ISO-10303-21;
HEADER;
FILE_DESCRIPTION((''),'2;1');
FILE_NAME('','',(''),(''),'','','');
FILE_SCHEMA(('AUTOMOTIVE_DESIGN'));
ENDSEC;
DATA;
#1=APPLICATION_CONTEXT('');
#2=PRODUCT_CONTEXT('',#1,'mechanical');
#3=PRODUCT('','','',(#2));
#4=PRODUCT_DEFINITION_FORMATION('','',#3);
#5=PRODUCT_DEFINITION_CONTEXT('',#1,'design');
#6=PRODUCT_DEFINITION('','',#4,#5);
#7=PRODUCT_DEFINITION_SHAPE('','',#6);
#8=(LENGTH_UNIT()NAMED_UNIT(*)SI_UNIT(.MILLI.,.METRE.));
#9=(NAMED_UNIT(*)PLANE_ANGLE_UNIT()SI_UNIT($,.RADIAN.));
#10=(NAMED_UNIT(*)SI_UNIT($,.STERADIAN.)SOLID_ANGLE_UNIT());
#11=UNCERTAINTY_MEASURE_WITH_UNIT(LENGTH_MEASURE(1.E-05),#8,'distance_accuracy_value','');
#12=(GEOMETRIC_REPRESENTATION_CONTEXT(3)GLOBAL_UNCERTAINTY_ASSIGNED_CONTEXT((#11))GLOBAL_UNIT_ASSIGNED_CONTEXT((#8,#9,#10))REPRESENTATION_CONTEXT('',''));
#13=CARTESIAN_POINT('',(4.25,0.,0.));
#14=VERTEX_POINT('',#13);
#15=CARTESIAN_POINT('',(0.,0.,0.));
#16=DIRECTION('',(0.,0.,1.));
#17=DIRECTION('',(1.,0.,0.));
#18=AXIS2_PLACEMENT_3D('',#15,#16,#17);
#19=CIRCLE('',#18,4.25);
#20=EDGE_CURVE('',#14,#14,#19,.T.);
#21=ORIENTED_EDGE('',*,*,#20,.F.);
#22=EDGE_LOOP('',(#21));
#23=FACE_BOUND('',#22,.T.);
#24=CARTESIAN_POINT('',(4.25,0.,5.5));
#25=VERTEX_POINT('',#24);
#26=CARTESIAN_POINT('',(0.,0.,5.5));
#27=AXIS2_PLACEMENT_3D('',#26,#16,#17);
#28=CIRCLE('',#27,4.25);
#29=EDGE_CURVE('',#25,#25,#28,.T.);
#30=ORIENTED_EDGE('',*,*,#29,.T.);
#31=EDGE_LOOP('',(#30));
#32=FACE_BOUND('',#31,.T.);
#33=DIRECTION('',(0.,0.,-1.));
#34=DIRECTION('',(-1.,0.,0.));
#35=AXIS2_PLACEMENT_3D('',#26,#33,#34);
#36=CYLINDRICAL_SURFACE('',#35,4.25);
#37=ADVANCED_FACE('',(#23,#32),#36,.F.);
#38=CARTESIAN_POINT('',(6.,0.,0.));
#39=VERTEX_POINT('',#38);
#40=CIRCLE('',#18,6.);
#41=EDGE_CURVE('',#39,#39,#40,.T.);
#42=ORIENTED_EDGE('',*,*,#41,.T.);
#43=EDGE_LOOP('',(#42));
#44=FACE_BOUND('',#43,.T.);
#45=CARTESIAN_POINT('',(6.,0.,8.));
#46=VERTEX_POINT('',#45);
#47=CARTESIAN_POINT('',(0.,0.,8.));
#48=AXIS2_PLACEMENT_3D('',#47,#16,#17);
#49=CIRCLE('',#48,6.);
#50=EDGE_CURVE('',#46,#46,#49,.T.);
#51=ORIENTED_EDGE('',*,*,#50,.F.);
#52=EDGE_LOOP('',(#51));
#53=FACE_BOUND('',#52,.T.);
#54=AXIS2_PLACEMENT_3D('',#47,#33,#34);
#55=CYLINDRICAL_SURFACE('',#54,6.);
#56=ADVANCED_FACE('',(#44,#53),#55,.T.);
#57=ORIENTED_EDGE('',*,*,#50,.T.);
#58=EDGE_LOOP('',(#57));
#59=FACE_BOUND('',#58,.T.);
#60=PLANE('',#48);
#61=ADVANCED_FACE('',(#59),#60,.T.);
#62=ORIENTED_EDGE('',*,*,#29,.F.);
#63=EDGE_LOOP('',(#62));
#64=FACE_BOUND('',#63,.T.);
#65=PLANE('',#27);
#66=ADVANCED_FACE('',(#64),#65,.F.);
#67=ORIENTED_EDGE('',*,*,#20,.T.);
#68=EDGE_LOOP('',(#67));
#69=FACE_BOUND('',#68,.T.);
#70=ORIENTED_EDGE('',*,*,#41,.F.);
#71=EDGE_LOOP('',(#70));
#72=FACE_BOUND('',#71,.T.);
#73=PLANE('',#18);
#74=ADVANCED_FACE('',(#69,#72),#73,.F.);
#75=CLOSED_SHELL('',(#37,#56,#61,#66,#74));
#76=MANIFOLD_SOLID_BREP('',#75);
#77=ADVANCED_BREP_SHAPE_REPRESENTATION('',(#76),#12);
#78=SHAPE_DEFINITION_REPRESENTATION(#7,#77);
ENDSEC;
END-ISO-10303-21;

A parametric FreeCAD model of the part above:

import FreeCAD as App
import Part
import Sketcher
Q = App.Units.Quantity

doc = App.newDocument("Part")
body = doc.addObject("PartDesign::Body", "Body")

sketch1 = body.newObject("Sketcher::SketchObject", "Sketch")
sketch1.AttachmentSupport = (doc.getObject("XY_Plane"), [""])
sketch1.MapMode = "FlatFace"
sketch1.addGeometry(Part.Circle(App.Vector(0, 0, 0), App.Vector(0, 0, 1), 6), False)
sketch1.addConstraint([
    Sketcher.Constraint("Coincident", 0, 3, -1, 1),
    Sketcher.Constraint("Diameter", 0, Q("12 mm")),
])
pad1 = body.newObject("PartDesign::Pad", "Pad")
pad1.Profile = sketch1
pad1.Length = 8

sketch2 = body.newObject("Sketcher::SketchObject", "Sketch001")
sketch2.AttachmentSupport = (doc.getObject("XY_Plane"), [""])
sketch2.MapMode = "FlatFace"
sketch2.addGeometry(Part.Circle(App.Vector(0, 0, 0), App.Vector(0, 0, 1), 4.25), False)
sketch2.addConstraint([
    Sketcher.Constraint("Coincident", 0, 3, -1, 1),
    Sketcher.Constraint("Diameter", 0, Q("8.5 mm")),
])
pocket1 = body.newObject("PartDesign::Pocket", "Pocket")
pocket1.Profile = sketch2
pocket1.Length = 5.5
pocket1.Reversed = True

doc.recompute()
